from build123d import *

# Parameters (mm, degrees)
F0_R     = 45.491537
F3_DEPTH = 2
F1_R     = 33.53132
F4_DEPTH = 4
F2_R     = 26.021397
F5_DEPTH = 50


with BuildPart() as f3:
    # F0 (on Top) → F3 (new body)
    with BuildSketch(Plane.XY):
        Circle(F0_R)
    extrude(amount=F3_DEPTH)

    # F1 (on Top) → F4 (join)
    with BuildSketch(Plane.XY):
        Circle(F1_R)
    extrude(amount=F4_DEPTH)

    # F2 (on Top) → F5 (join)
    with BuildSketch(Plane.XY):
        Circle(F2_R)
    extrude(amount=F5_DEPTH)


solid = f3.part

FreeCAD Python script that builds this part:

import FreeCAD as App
import Part
import Sketcher

V = App.Vector

doc = App.newDocument("Part")
body = doc.addObject("PartDesign::Body", "Body")

sketch1 = doc.addObject("Sketcher::SketchObject", "Sketch")
body.addObject(sketch1)
sketch1.AttachmentSupport = (doc.XY_Plane, [""])
sketch1.MapMode = "FlatFace"
sketch1.addGeometry(Part.Circle(V(0, 0, 0), V(0, 0, 1), 45), False)
sketch1.addConstraint(Sketcher.Constraint("Coincident", 0, 3, -1, 1))
sketch1.addConstraint(Sketcher.Constraint("Diameter", 0, 90.983074))
pad1 = doc.addObject("PartDesign::Pad", "Pad")
body.addObject(pad1)
pad1.Profile = sketch1
pad1.Length = 2

sketch2 = doc.addObject("Sketcher::SketchObject", "Sketch001")
body.addObject(sketch2)
sketch2.AttachmentSupport = (doc.XY_Plane, [""])
sketch2.MapMode = "FlatFace"
sketch2.addGeometry(Part.Circle(V(0, 0, 0), V(0, 0, 1), 34), False)
sketch2.addConstraint(Sketcher.Constraint("Coincident", 0, 3, -1, 1))
sketch2.addConstraint(Sketcher.Constraint("Diameter", 0, 67.06264))
pad2 = doc.addObject("PartDesign::Pad", "Pad001")
body.addObject(pad2)
pad2.Profile = sketch2
pad2.Length = 4

sketch3 = doc.addObject("Sketcher::SketchObject", "Sketch002")
body.addObject(sketch3)
sketch3.AttachmentSupport = (doc.XY_Plane, [""])
sketch3.MapMode = "FlatFace"
sketch3.addGeometry(Part.Circle(V(0, 0, 0), V(0, 0, 1), 26), False)
sketch3.addConstraint(Sketcher.Constraint("Coincident", 0, 3, -1, 1))
sketch3.addConstraint(Sketcher.Constraint("Diameter", 0, 52.042794))
pad3 = doc.addObject("PartDesign::Pad", "Pad002")
body.addObject(pad3)
pad3.Profile = sketch3
pad3.Length = 50

doc.recompute()
